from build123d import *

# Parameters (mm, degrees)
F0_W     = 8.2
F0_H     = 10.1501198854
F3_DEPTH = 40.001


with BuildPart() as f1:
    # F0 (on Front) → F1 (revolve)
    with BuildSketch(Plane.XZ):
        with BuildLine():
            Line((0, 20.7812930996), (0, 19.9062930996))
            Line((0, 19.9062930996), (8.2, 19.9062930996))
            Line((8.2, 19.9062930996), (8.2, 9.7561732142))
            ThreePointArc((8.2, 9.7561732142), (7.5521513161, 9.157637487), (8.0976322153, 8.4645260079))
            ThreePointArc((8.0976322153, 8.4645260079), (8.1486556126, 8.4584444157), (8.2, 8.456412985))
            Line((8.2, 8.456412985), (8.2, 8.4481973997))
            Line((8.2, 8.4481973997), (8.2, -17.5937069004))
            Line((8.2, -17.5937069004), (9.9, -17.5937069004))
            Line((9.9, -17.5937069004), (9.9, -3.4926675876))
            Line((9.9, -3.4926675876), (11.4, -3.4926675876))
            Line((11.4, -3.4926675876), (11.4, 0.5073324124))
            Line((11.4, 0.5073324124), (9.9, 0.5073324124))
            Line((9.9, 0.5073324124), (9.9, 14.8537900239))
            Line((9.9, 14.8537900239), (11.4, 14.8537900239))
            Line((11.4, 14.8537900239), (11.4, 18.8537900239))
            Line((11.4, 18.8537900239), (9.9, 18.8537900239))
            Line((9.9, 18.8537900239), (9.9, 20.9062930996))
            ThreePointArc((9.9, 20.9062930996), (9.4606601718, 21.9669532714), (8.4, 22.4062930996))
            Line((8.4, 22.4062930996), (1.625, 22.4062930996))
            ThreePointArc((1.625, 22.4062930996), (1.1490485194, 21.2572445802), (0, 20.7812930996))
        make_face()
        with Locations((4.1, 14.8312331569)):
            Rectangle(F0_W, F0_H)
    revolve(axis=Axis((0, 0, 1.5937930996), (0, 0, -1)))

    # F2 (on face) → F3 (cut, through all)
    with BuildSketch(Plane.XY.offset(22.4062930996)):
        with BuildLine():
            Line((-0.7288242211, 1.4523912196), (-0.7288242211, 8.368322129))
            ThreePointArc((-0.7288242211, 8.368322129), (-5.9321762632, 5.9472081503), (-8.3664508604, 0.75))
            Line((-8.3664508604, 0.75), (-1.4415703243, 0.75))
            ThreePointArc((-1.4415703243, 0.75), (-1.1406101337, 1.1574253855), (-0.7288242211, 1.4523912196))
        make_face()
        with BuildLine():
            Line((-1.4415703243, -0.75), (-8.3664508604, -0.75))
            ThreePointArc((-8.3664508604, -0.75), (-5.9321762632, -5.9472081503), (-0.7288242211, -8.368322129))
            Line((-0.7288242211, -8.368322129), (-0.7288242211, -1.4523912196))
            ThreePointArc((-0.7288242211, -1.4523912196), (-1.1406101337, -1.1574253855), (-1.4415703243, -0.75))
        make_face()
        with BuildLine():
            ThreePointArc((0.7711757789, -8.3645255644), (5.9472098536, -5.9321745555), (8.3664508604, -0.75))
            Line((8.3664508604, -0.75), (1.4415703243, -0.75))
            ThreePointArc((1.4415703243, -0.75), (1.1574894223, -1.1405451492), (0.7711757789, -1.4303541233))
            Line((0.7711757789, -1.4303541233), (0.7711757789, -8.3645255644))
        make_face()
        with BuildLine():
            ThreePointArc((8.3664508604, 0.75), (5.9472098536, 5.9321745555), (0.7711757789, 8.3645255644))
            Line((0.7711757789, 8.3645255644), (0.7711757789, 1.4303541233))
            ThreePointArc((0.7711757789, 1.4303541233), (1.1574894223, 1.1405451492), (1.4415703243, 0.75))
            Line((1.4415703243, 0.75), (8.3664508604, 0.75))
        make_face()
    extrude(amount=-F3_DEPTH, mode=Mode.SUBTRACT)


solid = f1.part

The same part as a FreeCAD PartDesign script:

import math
import FreeCAD as App
import Part
import Sketcher
from FreeCAD import Vector
Q = App.Units.Quantity

doc = App.newDocument("Part")
body = doc.addObject("PartDesign::Body", "Body")

# Sketch on XZ plane
sketch1 = body.newObject("Sketcher::SketchObject", "Sketch")
sketch1.AttachmentSupport = (doc.getObject("XZ_Plane"), [""])
sketch1.MapMode = "FlatFace"
sketch1.addGeometry(Part.LineSegment(Vector(0, 20.78, 0), Vector(0, 9.76, 0)), False)
sketch1.addGeometry(Part.LineSegment(Vector(0, 9.76, 0), Vector(8.2, 9.76, 0)), False)
sketch1.addGeometry(Part.ArcOfCircle(Part.Circle(Vector(8.2, 9.11, 0), Vector(0, 0, 1), 0.65), math.radians(90), math.radians(261)), False)
sketch1.addGeometry(Part.ArcOfCircle(Part.Circle(Vector(8.2, 9.11, 0), Vector(0, 0, 1), 0.65), math.radians(-99.06), math.radians(-90)), False)
sketch1.addGeometry(Part.LineSegment(Vector(8.2, 8.46, 0), Vector(8.2, -17.59, 0)), False)
sketch1.addGeometry(Part.LineSegment(Vector(8.2, -17.59, 0), Vector(9.9, -17.59, 0)), False)
sketch1.addGeometry(Part.LineSegment(Vector(9.9, -17.59, 0), Vector(9.9, -3.49, 0)), False)
sketch1.addGeometry(Part.LineSegment(Vector(9.9, -3.49, 0), Vector(11.4, -3.49, 0)), False)
sketch1.addGeometry(Part.LineSegment(Vector(11.4, -3.49, 0), Vector(11.4, 0.51, 0)), False)
sketch1.addGeometry(Part.LineSegment(Vector(11.4, 0.51, 0), Vector(9.9, 0.51, 0)), False)
sketch1.addGeometry(Part.LineSegment(Vector(9.9, 0.51, 0), Vector(9.9, 14.85, 0)), False)
sketch1.addGeometry(Part.LineSegment(Vector(9.9, 14.85, 0), Vector(11.4, 14.85, 0)), False)
sketch1.addGeometry(Part.LineSegment(Vector(11.4, 14.85, 0), Vector(11.4, 18.85, 0)), False)
sketch1.addGeometry(Part.LineSegment(Vector(11.4, 18.85, 0), Vector(9.9, 18.85, 0)), False)
sketch1.addGeometry(Part.LineSegment(Vector(9.9, 18.85, 0), Vector(9.9, 20.91, 0)), False)
sketch1.addGeometry(Part.ArcOfCircle(Part.Circle(Vector(8.4, 20.91, 0), Vector(0, 0, 1), 1.5), math.radians(0), math.radians(90)), False)
sketch1.addGeometry(Part.LineSegment(Vector(8.4, 22.41, 0), Vector(1.62, 22.41, 0)), False)
sketch1.addGeometry(Part.ArcOfCircle(Part.Circle(Vector(0, 22.41, 0), Vector(0, 0, 1), 1.62), math.radians(-90), math.radians(0)), False)
sketch1.addConstraint(Sketcher.Constraint("Coincident", 0, 2, 1, 1))
sketch1.addConstraint(Sketcher.Constraint("Tangent", 1, 2, 2, 1))
sketch1.addConstraint(Sketcher.Constraint("Tangent", 2, 2, 3, 1))
sketch1.addConstraint(Sketcher.Constraint("Coincident", 3, 2, 4, 1))
sketch1.addConstraint(Sketcher.Constraint("Coincident", 4, 2, 5, 1))
sketch1.addConstraint(Sketcher.Constraint("Coincident", 5, 2, 6, 1))
sketch1.addConstraint(Sketcher.Constraint("Coincident", 6, 2, 7, 1))
sketch1.addConstraint(Sketcher.Constraint("Coincident", 7, 2, 8, 1))
sketch1.addConstraint(Sketcher.Constraint("Coincident", 8, 2, 9, 1))
sketch1.addConstraint(Sketcher.Constraint("Coincident", 9, 2, 10, 1))
sketch1.addConstraint(Sketcher.Constraint("Coincident", 10, 2, 11, 1))
sketch1.addConstraint(Sketcher.Constraint("Coincident", 11, 2, 12, 1))
sketch1.addConstraint(Sketcher.Constraint("Coincident", 12, 2, 13, 1))
sketch1.addConstraint(Sketcher.Constraint("Coincident", 13, 2, 14, 1))
sketch1.addConstraint(Sketcher.Constraint("Tangent", 14, 2, 15, 1))
sketch1.addConstraint(Sketcher.Constraint("Tangent", 15, 2, 16, 1))
sketch1.addConstraint(Sketcher.Constraint("Coincident", 16, 2, 17, 2))
sketch1.addConstraint(Sketcher.Constraint("Coincident", 17, 1, 0, 1))
sketch1.addConstraint(Sketcher.Constraint("Vertical", 0))
sketch1.addConstraint(Sketcher.Constraint("Horizontal", 1))
sketch1.addConstraint(Sketcher.Constraint("Vertical", 4))
sketch1.addConstraint(Sketcher.Constraint("Horizontal", 5))
sketch1.addConstraint(Sketcher.Constraint("Vertical", 6))
sketch1.addConstraint(Sketcher.Constraint("Horizontal", 7))
sketch1.addConstraint(Sketcher.Constraint("Vertical", 8))
sketch1.addConstraint(Sketcher.Constraint("Horizontal", 9))
sketch1.addConstraint(Sketcher.Constraint("Vertical", 10))
sketch1.addConstraint(Sketcher.Constraint("Horizontal", 11))
sketch1.addConstraint(Sketcher.Constraint("Vertical", 12))
sketch1.addConstraint(Sketcher.Constraint("Horizontal", 13))
sketch1.addConstraint(Sketcher.Constraint("Vertical", 14))
sketch1.addConstraint(Sketcher.Constraint("Horizontal", 16))
sketch1.addConstraint(Sketcher.Constraint("Equal", 2, 3))
sketch1.addConstraint(Sketcher.Constraint("PointOnObject", 17, 3, -2))
sketch1.addConstraint(Sketcher.Constraint("PointOnObject", 0, 2, -2))
sketch1.addConstraint(Sketcher.Constraint("Horizontal", 17, 3, 15, 2))
sketch1.addConstraint(Sketcher.Constraint("Vertical", 1, 2, 3, 2))
sketch1.addConstraint(Sketcher.Constraint("Vertical", 6, 2, 9, 2))
sketch1.addConstraint(Sketcher.Constraint("Vertical", 8, 2, 11, 2))
sketch1.addConstraint(Sketcher.Constraint("Vertical", 10, 2, 13, 2))
sketch1.addConstraint(Sketcher.Constraint("Equal", 8, 12))
sketch1.addConstraint(Sketcher.Constraint("Radius", 15, Q("1.5 mm")))
sketch1.addConstraint(Sketcher.Constraint("DistanceY", 8, 1, 8, 2, Q("4 mm")))
sketch1.addConstraint(Sketcher.Constraint("DistanceX", 1, 1, 1, 2, Q("8.2 mm")))
sketch1.addConstraint(Sketcher.Constraint("DistanceX", 5, 1, 5, 2, Q("1.7 mm")))
sketch1.addConstraint(Sketcher.Constraint("DistanceX", 7, 1, 7, 2, Q("1.5 mm")))
sketch1.addConstraint(Sketcher.Constraint("Radius", 17, Q("1.625 mm")))
sketch1.addConstraint(Sketcher.Constraint("DistanceY", 2, 3, 15, 3, Q("11.8 mm")))
sketch1.addConstraint(Sketcher.Constraint("DistanceY", 4, 2, 3, 3, Q("26.7 mm")))
sketch1.addConstraint(Sketcher.Constraint("Radius", 2, Q("0.64988 mm")))
sketch1.addConstraint(Sketcher.Constraint("DistanceY", 6, 1, 6, 2, Q("14.101039 mm")))
sketch1.addConstraint(Sketcher.Constraint("DistanceY", 10, 1, 10, 2, Q("14.346458 mm")))
sketch1.addConstraint(Sketcher.Constraint("DistanceY", -1, 1, 10, 2, Q("14.85379 mm")))
sketch1.addConstraint(Sketcher.Constraint("DistanceX", -1, 1, 2, 2, Q("8.097632 mm")))
revolution = body.newObject("PartDesign::Revolution", "Revolution")
revolution.Profile = sketch1
revolution.ReferenceAxis = (sketch1, ["V_Axis"])
revolution.Angle = 360

# Sketch on XY plane
sketch2 = body.newObject("Sketcher::SketchObject", "Sketch001")
sketch2.AttachmentSupport = (doc.getObject("XY_Plane"), [""])
sketch2.MapMode = "FlatFace"
sketch2.AttachmentOffset = App.Placement(Vector(0, 0, 22.406293), App.Rotation())
sketch2.addGeometry(Part.LineSegment(Vector(-0.7, 1.5, 0), Vector(-0.7, 8.4, 0)), False)
sketch2.addGeometry(Part.ArcOfCircle(Part.Circle(Vector(0, 0, 0), Vector(0, 0, 1), 8.4), math.radians(95), math.radians(175)), False)
sketch2.addGeometry(Part.LineSegment(Vector(-8.4, 0.8, 0), Vector(-1.4, 0.8, 0)), False)
sketch2.addGeometry(Part.ArcOfCircle(Part.Circle(Vector(0, 0, 0), Vector(0, 0, 1), 1.6), math.radians(117), math.radians(153)), False)
sketch2.addGeometry(Part.LineSegment(Vector(-1.4, -0.8, 0), Vector(-8.4, -0.8, 0)), False)
sketch2.addGeometry(Part.ArcOfCircle(Part.Circle(Vector(0, 0, 0), Vector(0, 0, 1), 8.4), math.radians(-175), math.radians(-95)), False)
sketch2.addGeometry(Part.LineSegment(Vector(-0.7, -8.4, 0), Vector(-0.7, -1.5, 0)), False)
sketch2.addGeometry(Part.ArcOfCircle(Part.Circle(Vector(0, 0, 0), Vector(0, 0, 1), 1.6), math.radians(-153), math.radians(-117)), False)
sketch2.addGeometry(Part.ArcOfCircle(Part.Circle(Vector(0, 0, 0), Vector(0, 0, 1), 8.4), math.radians(-85), math.radians(-5)), False)
sketch2.addGeometry(Part.LineSegment(Vector(8.4, -0.8, 0), Vector(1.4, -0.8, 0)), False)
sketch2.addGeometry(Part.ArcOfCircle(Part.Circle(Vector(0, 0, 0), Vector(0, 0, 1), 1.6), math.radians(-62), math.radians(-27)), False)
sketch2.addGeometry(Part.LineSegment(Vector(0.8, -1.4, 0), Vector(0.8, -8.4, 0)), False)
sketch2.addGeometry(Part.ArcOfCircle(Part.Circle(Vector(0, 0, 0), Vector(0, 0, 1), 8.4), math.radians(5), math.radians(85)), False)
sketch2.addGeometry(Part.LineSegment(Vector(0.8, 8.4, 0), Vector(0.8, 1.4, 0)), False)
sketch2.addGeometry(Part.ArcOfCircle(Part.Circle(Vector(0, 0, 0), Vector(0, 0, 1), 1.6), math.radians(27), math.radians(62)), False)
sketch2.addGeometry(Part.LineSegment(Vector(1.4, 0.8, 0), Vector(8.4, 0.8, 0)), False)
sketch2.addConstraint(Sketcher.Constraint("Coincident", 0, 2, 1, 1))
sketch2.addConstraint(Sketcher.Constraint("Coincident", 1, 2, 2, 1))
sketch2.addConstraint(Sketcher.Constraint("Coincident", 2, 2, 3, 2))
sketch2.addConstraint(Sketcher.Constraint("Coincident", 3, 1, 0, 1))
sketch2.addConstraint(Sketcher.Constraint("Coincident", 4, 2, 5, 1))
sketch2.addConstraint(Sketcher.Constraint("Coincident", 5, 2, 6, 1))
sketch2.addConstraint(Sketcher.Constraint("Coincident", 6, 2, 7, 2))
sketch2.addConstraint(Sketcher.Constraint("Coincident", 7, 1, 4, 1))
sketch2.addConstraint(Sketcher.Constraint("Coincident", 8, 2, 9, 1))
sketch2.addConstraint(Sketcher.Constraint("Coincident", 9, 2, 10, 2))
sketch2.addConstraint(Sketcher.Constraint("Coincident", 10, 1, 11, 1))
sketch2.addConstraint(Sketcher.Constraint("Coincident", 11, 2, 8, 1))
sketch2.addConstraint(Sketcher.Constraint("Coincident", 12, 2, 13, 1))
sketch2.addConstraint(Sketcher.Constraint("Coincident", 13, 2, 14, 2))
sketch2.addConstraint(Sketcher.Constraint("Coincident", 14, 1, 15, 1))
sketch2.addConstraint(Sketcher.Constraint("Coincident", 15, 2, 12, 1))
sketch2.addConstraint(Sketcher.Constraint("Vertical", 0))
sketch2.addConstraint(Sketcher.Constraint("Horizontal", 2))
sketch2.addConstraint(Sketcher.Constraint("Horizontal", 4))
sketch2.addConstraint(Sketcher.Constraint("Vertical", 6))
sketch2.addConstraint(Sketcher.Constraint("Horizontal", 9))
sketch2.addConstraint(Sketcher.Constraint("Vertical", 11))
sketch2.addConstraint(Sketcher.Constraint("Vertical", 13))
sketch2.addConstraint(Sketcher.Constraint("Horizontal", 15))
sketch2.addConstraint(Sketcher.Constraint("Coincident", 1, 3, -1, 1))
sketch2.addConstraint(Sketcher.Constraint("Coincident", 3, 3, -1, 1))
sketch2.addConstraint(Sketcher.Constraint("Coincident", 5, 3, -1, 1))
sketch2.addConstraint(Sketcher.Constraint("Coincident", 7, 3, -1, 1))
sketch2.addConstraint(Sketcher.Constraint("Coincident", 8, 3, -1, 1))
sketch2.addConstraint(Sketcher.Constraint("Coincident", 10, 3, -1, 1))
sketch2.addConstraint(Sketcher.Constraint("Coincident", 12, 3, -1, 1))
sketch2.addConstraint(Sketcher.Constraint("Coincident", 14, 3, -1, 1))
sketch2.addConstraint(Sketcher.Constraint("Equal", 1, 5))
sketch2.addConstraint(Sketcher.Constraint("Equal", 3, 7))
sketch2.addConstraint(Sketcher.Constraint("Equal", 5, 8))
sketch2.addConstraint(Sketcher.Constraint("Equal", 7, 10))
sketch2.addConstraint(Sketcher.Constraint("Equal", 8, 12))
sketch2.addConstraint(Sketcher.Constraint("Equal", 10, 14))
sketch2.addConstraint(Sketcher.Constraint("Horizontal", 7, 1, 8, 2))
sketch2.addConstraint(Sketcher.Constraint("Horizontal", 2, 2, 14, 1))
sketch2.addConstraint(Sketcher.Constraint("Vertical", 1, 2, 4, 2))
sketch2.addConstraint(Sketcher.Constraint("Vertical", 3, 1, 5, 2))
sketch2.addConstraint(Sketcher.Constraint("Vertical", 11, 2, 12, 2))
sketch2.addConstraint(Sketcher.Constraint("Radius", 1, Q("8.4 mm")))
sketch2.addConstraint(Sketcher.Constraint("Radius", 3, Q("1.625 mm")))
sketch2.addConstraint(Sketcher.Constraint("DistanceY", 4, 2, 1, 2, Q("1.5 mm")))
sketch2.addConstraint(Sketcher.Constraint("DistanceX", 6, 2, 10, 1, Q("1.5 mm")))
sketch2.addConstraint(Sketcher.Constraint("DistanceY", 0, 1, 0, 2, Q("6.915931 mm")))
pocket1 = body.newObject("PartDesign::Pocket", "Pocket")
pocket1.Profile = sketch2
pocket1.Type = "ThroughAll"

doc.recompute()
